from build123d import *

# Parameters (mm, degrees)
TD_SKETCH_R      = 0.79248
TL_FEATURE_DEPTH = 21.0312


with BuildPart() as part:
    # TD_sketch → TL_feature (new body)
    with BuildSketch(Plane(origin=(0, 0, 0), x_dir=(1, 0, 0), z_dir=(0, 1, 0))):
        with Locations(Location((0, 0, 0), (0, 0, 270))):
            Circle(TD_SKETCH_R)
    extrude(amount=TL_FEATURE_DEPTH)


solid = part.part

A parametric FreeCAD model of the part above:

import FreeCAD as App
import Part
import Sketcher
from FreeCAD import Vector
Q = App.Units.Quantity

doc = App.newDocument("Part")
body = doc.addObject("PartDesign::Body", "Body")

sketch1 = doc.addObject("Sketcher::SketchObject", "Sketch")
body.addObject(sketch1)
sketch1.AttachmentSupport = (doc.XZ_Plane, [""])
sketch1.MapMode = "FlatFace"
sketch1.addGeometry(Part.Circle(Vector(0, 0, 0), Vector(0, 0, 1), 0.8), False)
sketch1.addConstraint([
    Sketcher.Constraint("Coincident", 0, 3, -1, 1),
    Sketcher.Constraint("Diameter", 0, Q("0.0624 in")),
])
pad1 = doc.addObject("PartDesign::Pad", "Pad")
body.addObject(pad1)
pad1.Profile = sketch1
pad1.Length = Q("0.828 in")
pad1.Reversed = True

doc.recompute()
